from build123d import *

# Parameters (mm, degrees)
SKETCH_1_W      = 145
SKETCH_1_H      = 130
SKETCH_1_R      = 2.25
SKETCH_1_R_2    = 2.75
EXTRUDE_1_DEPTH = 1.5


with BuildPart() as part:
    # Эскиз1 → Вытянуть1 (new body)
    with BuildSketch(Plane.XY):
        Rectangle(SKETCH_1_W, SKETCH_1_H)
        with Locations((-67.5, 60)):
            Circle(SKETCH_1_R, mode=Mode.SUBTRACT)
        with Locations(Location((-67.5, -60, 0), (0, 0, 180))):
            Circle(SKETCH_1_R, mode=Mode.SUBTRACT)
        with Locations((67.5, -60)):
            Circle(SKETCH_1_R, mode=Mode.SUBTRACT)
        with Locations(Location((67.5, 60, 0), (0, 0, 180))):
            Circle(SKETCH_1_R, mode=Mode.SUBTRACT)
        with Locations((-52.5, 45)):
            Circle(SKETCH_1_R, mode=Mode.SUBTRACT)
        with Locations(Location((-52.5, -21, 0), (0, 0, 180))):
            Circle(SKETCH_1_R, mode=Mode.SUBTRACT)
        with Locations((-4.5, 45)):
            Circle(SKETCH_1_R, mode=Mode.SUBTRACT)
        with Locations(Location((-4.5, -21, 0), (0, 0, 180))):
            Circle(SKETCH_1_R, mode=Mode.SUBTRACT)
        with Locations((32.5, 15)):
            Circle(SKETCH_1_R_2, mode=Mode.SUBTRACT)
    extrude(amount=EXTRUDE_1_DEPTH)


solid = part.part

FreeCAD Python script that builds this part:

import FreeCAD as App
import Part
import Sketcher

V = App.Vector
Q = App.Units.Quantity


def add_polygon(sketch, points):
    """Adds a closed chain of lines whose ends are joined by coincident constraints."""
    first, n = sketch.GeometryCount, len(points)
    for a, b in zip(points, points[1:] + points[:1]):
        sketch.addGeometry(Part.LineSegment(App.Vector(*a, 0), App.Vector(*b, 0)), False)
    for i in range(n):
        sketch.addConstraint(Sketcher.Constraint("Coincident", first + i, 2, first + (i + 1) % n, 1))

doc = App.newDocument("Part")
body = doc.addObject("PartDesign::Body", "Body")

# Sketch on XY plane
sketch1 = body.newObject("Sketcher::SketchObject", "Sketch")
sketch1.AttachmentSupport = (doc.getObject("XY_Plane"), [""])
sketch1.MapMode = "FlatFace"
add_polygon(sketch1, [(-72.5, 65), (-72.5, -65), (72.5, -65), (72.5, 65)])  # lines 0-3
sketch1.addGeometry(Part.Circle(V(-67.5, -60, 0), V(0, 0, 1), 2.25), False)  # 4
sketch1.addGeometry(Part.Circle(V(-52.5, -21, 0), V(0, 0, 1), 2.25), False)  # 5
sketch1.addGeometry(Part.Circle(V(-4.5, -21, 0), V(0, 0, 1), 2.25), False)  # 6
sketch1.addGeometry(Part.Circle(V(67.5, -60, 0), V(0, 0, 1), 2.25), False)  # 7
sketch1.addGeometry(Part.Circle(V(-52.5, 45, 0), V(0, 0, 1), 2.25), False)  # 8
sketch1.addGeometry(Part.Circle(V(-67.5, 60, 0), V(0, 0, 1), 2.25), False)  # 9
sketch1.addGeometry(Part.Circle(V(-4.5, 45, 0), V(0, 0, 1), 2.25), False)  # 10
sketch1.addGeometry(Part.Circle(V(32.5, 15, 0), V(0, 0, 1), 2.75), False)  # 11
sketch1.addGeometry(Part.Circle(V(67.5, 60, 0), V(0, 0, 1), 2.25), False)  # 12
sketch1.addConstraint([
    Sketcher.Constraint("Vertical", 0),
    Sketcher.Constraint("Horizontal", 1),
    Sketcher.Constraint("Vertical", 2),
    Sketcher.Constraint("Horizontal", 3),
    Sketcher.Constraint("Equal", 4, 5),
    Sketcher.Constraint("Equal", 5, 6),
    Sketcher.Constraint("Equal", 6, 7),
    Sketcher.Constraint("Equal", 7, 8),
    Sketcher.Constraint("Equal", 8, 9),
    Sketcher.Constraint("Equal", 9, 10),
    Sketcher.Constraint("Equal", 10, 12),
    Sketcher.Constraint("Symmetric", 7, 3, 9, 3, -1, 1),
    Sketcher.Constraint("Symmetric", 4, 3, 12, 3, -1, 1),
    Sketcher.Constraint("Symmetric", 0, 2, 2, 2, -1, 1),
    Sketcher.Constraint("Symmetric", 4, 3, 7, 3, -2),
    Sketcher.Constraint("Horizontal", 5, 3, 6, 3),
    Sketcher.Constraint("Horizontal", 8, 3, 10, 3),
    Sketcher.Constraint("Vertical", 5, 3, 8, 3),
    Sketcher.Constraint("Vertical", 6, 3, 10, 3),
    Sketcher.Constraint("Diameter", 4, Q("4.5 mm")),
    Sketcher.Constraint("Diameter", 11, Q("5.5 mm")),
    Sketcher.Constraint("DistanceX", 1, 1, 1, 2, Q("145 mm")),
    Sketcher.Constraint("DistanceY", 0, 2, 0, 1, Q("130 mm")),
    Sketcher.Constraint("DistanceY", 4, 3, -1, 1, Q("60 mm")),
    Sketcher.Constraint("DistanceY", 5, 3, -1, 1, Q("21 mm")),
    Sketcher.Constraint("DistanceY", -1, 1, 8, 3, Q("45 mm")),
    Sketcher.Constraint("DistanceY", -1, 1, 11, 3, Q("15 mm")),
    Sketcher.Constraint("DistanceX", 4, 3, 5, 3, Q("15 mm")),
    Sketcher.Constraint("DistanceX", 5, 3, 6, 3, Q("48 mm")),
    Sketcher.Constraint("DistanceX", 6, 3, 7, 3, Q("72 mm")),
    Sketcher.Constraint("DistanceX", 10, 3, 11, 3, Q("37 mm")),
])
pad1 = body.newObject("PartDesign::Pad", "Pad")
pad1.Profile = sketch1
pad1.Length = 1.5

doc.recompute()
